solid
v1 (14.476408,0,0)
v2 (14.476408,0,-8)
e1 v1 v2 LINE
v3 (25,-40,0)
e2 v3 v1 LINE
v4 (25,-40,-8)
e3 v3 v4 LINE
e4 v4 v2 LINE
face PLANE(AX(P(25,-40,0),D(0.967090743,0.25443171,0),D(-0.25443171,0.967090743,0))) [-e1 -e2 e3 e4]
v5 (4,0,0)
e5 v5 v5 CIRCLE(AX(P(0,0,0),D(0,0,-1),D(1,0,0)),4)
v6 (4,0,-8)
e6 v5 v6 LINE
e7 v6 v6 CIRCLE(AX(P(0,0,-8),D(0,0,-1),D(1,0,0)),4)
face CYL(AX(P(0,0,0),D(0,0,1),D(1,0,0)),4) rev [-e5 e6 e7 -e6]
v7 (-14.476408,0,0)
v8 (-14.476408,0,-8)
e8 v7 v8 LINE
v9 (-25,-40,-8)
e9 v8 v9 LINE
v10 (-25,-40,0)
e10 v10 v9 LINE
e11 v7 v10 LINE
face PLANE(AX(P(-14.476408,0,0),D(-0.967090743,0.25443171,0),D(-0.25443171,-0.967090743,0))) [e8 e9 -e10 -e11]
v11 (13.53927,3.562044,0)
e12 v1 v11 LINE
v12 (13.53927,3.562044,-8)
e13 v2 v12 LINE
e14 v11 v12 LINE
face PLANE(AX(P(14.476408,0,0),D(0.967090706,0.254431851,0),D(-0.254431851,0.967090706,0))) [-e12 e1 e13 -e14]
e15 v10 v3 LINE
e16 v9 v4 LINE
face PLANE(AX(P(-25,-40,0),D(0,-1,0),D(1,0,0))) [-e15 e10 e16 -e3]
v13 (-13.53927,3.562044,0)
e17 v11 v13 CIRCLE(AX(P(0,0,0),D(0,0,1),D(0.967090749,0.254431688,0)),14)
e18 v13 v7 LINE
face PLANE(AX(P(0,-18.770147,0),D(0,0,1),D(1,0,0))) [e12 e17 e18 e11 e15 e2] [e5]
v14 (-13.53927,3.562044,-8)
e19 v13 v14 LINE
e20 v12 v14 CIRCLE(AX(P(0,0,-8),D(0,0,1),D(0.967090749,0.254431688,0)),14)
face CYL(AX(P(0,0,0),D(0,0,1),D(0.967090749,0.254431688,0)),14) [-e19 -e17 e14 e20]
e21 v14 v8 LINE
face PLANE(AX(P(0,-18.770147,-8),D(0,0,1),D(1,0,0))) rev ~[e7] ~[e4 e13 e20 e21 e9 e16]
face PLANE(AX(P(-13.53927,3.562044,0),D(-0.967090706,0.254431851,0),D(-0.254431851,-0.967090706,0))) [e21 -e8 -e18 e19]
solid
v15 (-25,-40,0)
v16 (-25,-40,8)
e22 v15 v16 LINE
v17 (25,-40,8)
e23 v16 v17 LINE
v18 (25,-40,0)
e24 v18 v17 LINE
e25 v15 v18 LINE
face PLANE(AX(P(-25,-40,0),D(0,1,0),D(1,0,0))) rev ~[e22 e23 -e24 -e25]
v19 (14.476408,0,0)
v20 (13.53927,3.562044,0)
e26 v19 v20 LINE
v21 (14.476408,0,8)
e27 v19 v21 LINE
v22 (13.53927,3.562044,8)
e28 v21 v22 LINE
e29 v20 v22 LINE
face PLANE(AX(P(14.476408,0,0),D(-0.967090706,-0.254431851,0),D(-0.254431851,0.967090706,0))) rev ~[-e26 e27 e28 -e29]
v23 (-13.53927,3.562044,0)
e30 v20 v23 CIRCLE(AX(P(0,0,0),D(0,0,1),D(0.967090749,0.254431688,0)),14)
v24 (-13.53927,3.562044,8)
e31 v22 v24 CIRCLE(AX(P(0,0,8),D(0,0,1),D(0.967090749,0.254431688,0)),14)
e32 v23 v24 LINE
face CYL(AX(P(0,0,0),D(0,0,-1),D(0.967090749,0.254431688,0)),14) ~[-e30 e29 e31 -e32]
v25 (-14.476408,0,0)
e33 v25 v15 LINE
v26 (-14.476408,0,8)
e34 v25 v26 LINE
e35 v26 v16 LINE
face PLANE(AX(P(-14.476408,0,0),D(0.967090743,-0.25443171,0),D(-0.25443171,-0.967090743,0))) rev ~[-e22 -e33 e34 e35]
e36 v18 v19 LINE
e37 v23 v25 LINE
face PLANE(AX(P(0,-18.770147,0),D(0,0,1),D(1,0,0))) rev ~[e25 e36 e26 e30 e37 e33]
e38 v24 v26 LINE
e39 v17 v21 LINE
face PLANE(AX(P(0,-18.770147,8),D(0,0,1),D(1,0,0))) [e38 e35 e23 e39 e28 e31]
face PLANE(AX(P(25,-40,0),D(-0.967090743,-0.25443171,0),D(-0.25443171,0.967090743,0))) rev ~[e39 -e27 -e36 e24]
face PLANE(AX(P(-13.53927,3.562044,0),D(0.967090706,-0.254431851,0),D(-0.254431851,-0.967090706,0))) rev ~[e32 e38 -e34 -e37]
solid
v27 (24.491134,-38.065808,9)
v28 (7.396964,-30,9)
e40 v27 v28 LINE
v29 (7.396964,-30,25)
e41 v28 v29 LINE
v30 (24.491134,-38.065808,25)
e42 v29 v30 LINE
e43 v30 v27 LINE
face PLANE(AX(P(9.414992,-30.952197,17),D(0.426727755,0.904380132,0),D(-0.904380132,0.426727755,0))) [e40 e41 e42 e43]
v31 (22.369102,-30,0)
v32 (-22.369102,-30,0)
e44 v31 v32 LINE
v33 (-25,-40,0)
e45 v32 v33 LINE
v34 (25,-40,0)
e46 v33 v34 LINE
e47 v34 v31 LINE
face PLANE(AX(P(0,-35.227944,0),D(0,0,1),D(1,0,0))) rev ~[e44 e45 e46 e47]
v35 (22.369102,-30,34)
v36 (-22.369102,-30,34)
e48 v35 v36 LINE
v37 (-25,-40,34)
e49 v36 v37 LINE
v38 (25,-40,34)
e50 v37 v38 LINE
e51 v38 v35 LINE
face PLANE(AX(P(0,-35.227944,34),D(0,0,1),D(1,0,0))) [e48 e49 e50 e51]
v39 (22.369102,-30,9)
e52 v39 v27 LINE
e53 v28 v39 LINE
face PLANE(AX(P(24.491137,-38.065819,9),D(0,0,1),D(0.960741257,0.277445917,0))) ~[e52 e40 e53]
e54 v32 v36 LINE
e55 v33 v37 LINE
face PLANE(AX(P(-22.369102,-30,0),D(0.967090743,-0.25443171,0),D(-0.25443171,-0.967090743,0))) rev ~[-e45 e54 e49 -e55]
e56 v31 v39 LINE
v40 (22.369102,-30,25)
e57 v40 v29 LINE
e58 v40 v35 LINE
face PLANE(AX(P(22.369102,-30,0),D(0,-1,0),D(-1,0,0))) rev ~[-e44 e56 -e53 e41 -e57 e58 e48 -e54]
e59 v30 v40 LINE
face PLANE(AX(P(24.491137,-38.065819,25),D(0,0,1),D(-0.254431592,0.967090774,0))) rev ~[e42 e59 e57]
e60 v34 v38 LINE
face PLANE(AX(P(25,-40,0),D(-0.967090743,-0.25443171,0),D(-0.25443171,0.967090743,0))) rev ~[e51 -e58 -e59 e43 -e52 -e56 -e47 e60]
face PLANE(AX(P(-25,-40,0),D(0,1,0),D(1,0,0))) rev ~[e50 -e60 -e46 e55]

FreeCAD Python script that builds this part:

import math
import FreeCAD as App
import Part
import Sketcher
Q = App.Units.Quantity


def add_polygon(sketch, points):
    """Adds a closed chain of lines whose ends are joined by coincident constraints."""
    first, n = sketch.GeometryCount, len(points)
    for a, b in zip(points, points[1:] + points[:1]):
        sketch.addGeometry(Part.LineSegment(App.Vector(*a, 0), App.Vector(*b, 0)), False)
    for i in range(n):
        sketch.addConstraint(Sketcher.Constraint("Coincident", first + i, 2, first + (i + 1) % n, 1))

doc = App.newDocument("Part")
params = doc.addObject("Spreadsheet::Sheet", "Params")
for row, (alias, value) in enumerate([
    ("sketch1_diameter", "8 mm"),
    ("sketch1_radius", "14 mm"),
    ("sketch1_width", "50 mm"),
    ("pad1_length", "8 mm"),
    ("sketch2_radius", "14 mm"),
    ("sketch2_width", "50 mm"),
    ("pad2_length", "8 mm"),
    ("sketch3_width", "50 mm"),
    ("pad3_length", "34 mm"),
    ("sketch4_width", "25 mm"),
    ("sketch4_height", "16 mm"),
    ("groove_angle", "50 deg"),
], start=1):
    params.set(f"A{row}", alias)
    params.set(f"B{row}", "=" + value)
    params.setAlias(f"B{row}", alias)

body = doc.addObject("PartDesign::Body", "Body")

sketch1 = body.newObject("Sketcher::SketchObject", "Sketch")
sketch1.AttachmentSupport = (doc.getObject("XY_Plane"), [""])
sketch1.MapMode = "FlatFace"
sketch1.addGeometry([
    Part.LineSegment(App.Vector(14.5, 0, 0), App.Vector(13.5, 3.6, 0)),
    Part.ArcOfCircle(Part.Circle(App.Vector(0, 0, 0), App.Vector(0, 0, 1), 14), math.radians(15), math.radians(165)),
    Part.LineSegment(App.Vector(-13.5, 3.6, 0), App.Vector(-14.5, 0, 0)),
    Part.LineSegment(App.Vector(-14.5, 0, 0), App.Vector(-25, -40, 0)),
    Part.LineSegment(App.Vector(-25, -40, 0), App.Vector(25, -40, 0)),
    Part.LineSegment(App.Vector(25, -40, 0), App.Vector(14.5, 0, 0)),
    Part.Circle(App.Vector(0, 0, 0), App.Vector(0, 0, 1), 4),
], False)
sketch1.addConstraint([
    Sketcher.Constraint("Tangent", 0, 2, 1, 1),
    Sketcher.Constraint("Tangent", 1, 2, 2, 1),
    Sketcher.Constraint("Coincident", 2, 2, 3, 1),
    Sketcher.Constraint("Coincident", 3, 2, 4, 1),
    Sketcher.Constraint("Coincident", 4, 2, 5, 1),
    Sketcher.Constraint("Coincident", 5, 2, 0, 1),
    Sketcher.Constraint("Horizontal", 4),
    Sketcher.Constraint("Coincident", 1, 3, -1, 1),
    Sketcher.Constraint("Coincident", 6, 3, -1, 1),
    Sketcher.Constraint("Symmetric", 2, 2, 5, 2, -1, 1),
    Sketcher.Constraint("PointOnObject", 2, 2, -1),
    Sketcher.Constraint("Parallel", 2, 3),
    Sketcher.Constraint("Parallel", 0, 5),
    Sketcher.Constraint("Diameter", 6, Q("8 mm")),
    Sketcher.Constraint("Radius", 1, Q("14 mm")),
    Sketcher.Constraint("DistanceX", 4, 1, 4, 2, Q("50 mm")),
    Sketcher.Constraint("DistanceY", 3, 2, -1, 1, Q("40 mm")),
])
sketch1.setExpression("Constraints[13]", "Params.sketch1_diameter")
sketch1.setExpression("Constraints[14]", "Params.sketch1_radius")
sketch1.setExpression("Constraints[15]", "Params.sketch1_width")
pad1 = body.newObject("PartDesign::Pad", "Pad")
pad1.Profile = sketch1
pad1.setExpression("Length", "Params.pad1_length")
pad1.Reversed = True
body2 = doc.addObject("PartDesign::Body", "Body001")

sketch2 = body2.newObject("Sketcher::SketchObject", "Sketch001")
sketch2.AttachmentSupport = (doc.getObject("XY_Plane001"), [""])
sketch2.MapMode = "FlatFace"
sketch2.addGeometry([
    Part.LineSegment(App.Vector(14.5, 0, 0), App.Vector(13.5, 3.6, 0)),
    Part.ArcOfCircle(Part.Circle(App.Vector(0, 0, 0), App.Vector(0, 0, 1), 14), math.radians(15), math.radians(165)),
    Part.LineSegment(App.Vector(-13.5, 3.6, 0), App.Vector(-14.5, 0, 0)),
    Part.LineSegment(App.Vector(-14.5, 0, 0), App.Vector(-25, -40, 0)),
    Part.LineSegment(App.Vector(-25, -40, 0), App.Vector(25, -40, 0)),
    Part.LineSegment(App.Vector(25, -40, 0), App.Vector(14.5, 0, 0)),
], False)
sketch2.addConstraint([
    Sketcher.Constraint("Tangent", 0, 2, 1, 1),
    Sketcher.Constraint("Tangent", 1, 2, 2, 1),
    Sketcher.Constraint("Coincident", 2, 2, 3, 1),
    Sketcher.Constraint("Coincident", 3, 2, 4, 1),
    Sketcher.Constraint("Coincident", 4, 2, 5, 1),
    Sketcher.Constraint("Coincident", 5, 2, 0, 1),
    Sketcher.Constraint("Horizontal", 4),
    Sketcher.Constraint("Coincident", 1, 3, -1, 1),
    Sketcher.Constraint("Symmetric", 2, 2, 5, 2, -1, 1),
    Sketcher.Constraint("PointOnObject", 2, 2, -1),
    Sketcher.Constraint("Parallel", 2, 3),
    Sketcher.Constraint("Parallel", 0, 5),
    Sketcher.Constraint("Radius", 1, Q("14 mm")),
    Sketcher.Constraint("DistanceX", 4, 1, 4, 2, Q("50 mm")),
    Sketcher.Constraint("DistanceY", 3, 2, -1, 1, Q("40 mm")),
])
sketch2.setExpression("Constraints[12]", "Params.sketch2_radius")
sketch2.setExpression("Constraints[13]", "Params.sketch2_width")
pad2 = body2.newObject("PartDesign::Pad", "Pad001")
pad2.Profile = sketch2
pad2.setExpression("Length", "Params.pad2_length")
body3 = doc.addObject("PartDesign::Body", "Body002")

sketch3 = body3.newObject("Sketcher::SketchObject", "Sketch002")
sketch3.AttachmentSupport = (doc.getObject("XY_Plane002"), [""])
sketch3.MapMode = "FlatFace"
add_polygon(sketch3, [(-22, -30), (-25, -40), (25, -40), (22, -30)])
sketch3.addConstraint([
    Sketcher.Constraint("Horizontal", 1),
    Sketcher.Constraint("Horizontal", 3),
    Sketcher.Constraint("Equal", 0, 2),
    Sketcher.Constraint("DistanceX", 1, 1, 1, 2, Q("50 mm")),
    Sketcher.Constraint("DistanceX", 0, 2, -1, 1, Q("25 mm")),
    Sketcher.Constraint("DistanceY", 0, 2, -1, 1, Q("40 mm")),
    Sketcher.Constraint("DistanceY", 2, 2, -1, 1, Q("30 mm")),
    Sketcher.Constraint("DistanceX", 0, 2, 2, 2, Q("47.369102 mm")),
])
sketch3.setExpression("Constraints[7]", "Params.sketch3_width")
pad3 = body3.newObject("PartDesign::Pad", "Pad002")
pad3.Profile = sketch3
pad3.setExpression("Length", "Params.pad3_length")

sketch4 = body3.newObject("Sketcher::SketchObject", "Sketch003")
sketch4.Placement = App.Placement(App.Vector(13.53927, 3.562044, 0), App.Rotation(App.Vector(-0.254431918, 0.967090688, 0), App.Vector(0, 0, 1), App.Vector(0.967090688, 0.254431918, 0), "ZXY"))
add_polygon(sketch4, [(-18, 9), (-18, 25), (-43, 25), (-43, 9)])
sketch4.addGeometry(Part.LineSegment(App.Vector(-43, 25, 0), App.Vector(-43, 9, 0)), True)
sketch4.addConstraint([
    Sketcher.Constraint("Vertical", 0),
    Sketcher.Constraint("Horizontal", 1),
    Sketcher.Constraint("Vertical", 2),
    Sketcher.Constraint("Horizontal", 3),
    Sketcher.Constraint("Vertical", 4),
    Sketcher.Constraint("Coincident", 4, 1, 1, 2),
    Sketcher.Constraint("Horizontal", 3, 2, 4, 2),
    Sketcher.Constraint("DistanceX", 1, 2, 1, 1, Q("25 mm")),
    Sketcher.Constraint("DistanceY", 0, 1, 0, 2, Q("16 mm")),
    Sketcher.Constraint("DistanceY", -1, 1, 0, 2, Q("25 mm")),
    Sketcher.Constraint("DistanceX", 0, 2, -1, 1, Q("18.044423 mm")),
])
sketch4.setExpression("Constraints[11]", "Params.sketch4_width")
sketch4.setExpression("Constraints[12]", "Params.sketch4_height")
groove = body3.newObject("PartDesign::Groove", "Groove")
groove.Profile = sketch4
groove.ReferenceAxis = (sketch4, ["Axis0"])
groove.setExpression("Angle", "Params.groove_angle")
groove.Reversed = True

doc.recompute()
